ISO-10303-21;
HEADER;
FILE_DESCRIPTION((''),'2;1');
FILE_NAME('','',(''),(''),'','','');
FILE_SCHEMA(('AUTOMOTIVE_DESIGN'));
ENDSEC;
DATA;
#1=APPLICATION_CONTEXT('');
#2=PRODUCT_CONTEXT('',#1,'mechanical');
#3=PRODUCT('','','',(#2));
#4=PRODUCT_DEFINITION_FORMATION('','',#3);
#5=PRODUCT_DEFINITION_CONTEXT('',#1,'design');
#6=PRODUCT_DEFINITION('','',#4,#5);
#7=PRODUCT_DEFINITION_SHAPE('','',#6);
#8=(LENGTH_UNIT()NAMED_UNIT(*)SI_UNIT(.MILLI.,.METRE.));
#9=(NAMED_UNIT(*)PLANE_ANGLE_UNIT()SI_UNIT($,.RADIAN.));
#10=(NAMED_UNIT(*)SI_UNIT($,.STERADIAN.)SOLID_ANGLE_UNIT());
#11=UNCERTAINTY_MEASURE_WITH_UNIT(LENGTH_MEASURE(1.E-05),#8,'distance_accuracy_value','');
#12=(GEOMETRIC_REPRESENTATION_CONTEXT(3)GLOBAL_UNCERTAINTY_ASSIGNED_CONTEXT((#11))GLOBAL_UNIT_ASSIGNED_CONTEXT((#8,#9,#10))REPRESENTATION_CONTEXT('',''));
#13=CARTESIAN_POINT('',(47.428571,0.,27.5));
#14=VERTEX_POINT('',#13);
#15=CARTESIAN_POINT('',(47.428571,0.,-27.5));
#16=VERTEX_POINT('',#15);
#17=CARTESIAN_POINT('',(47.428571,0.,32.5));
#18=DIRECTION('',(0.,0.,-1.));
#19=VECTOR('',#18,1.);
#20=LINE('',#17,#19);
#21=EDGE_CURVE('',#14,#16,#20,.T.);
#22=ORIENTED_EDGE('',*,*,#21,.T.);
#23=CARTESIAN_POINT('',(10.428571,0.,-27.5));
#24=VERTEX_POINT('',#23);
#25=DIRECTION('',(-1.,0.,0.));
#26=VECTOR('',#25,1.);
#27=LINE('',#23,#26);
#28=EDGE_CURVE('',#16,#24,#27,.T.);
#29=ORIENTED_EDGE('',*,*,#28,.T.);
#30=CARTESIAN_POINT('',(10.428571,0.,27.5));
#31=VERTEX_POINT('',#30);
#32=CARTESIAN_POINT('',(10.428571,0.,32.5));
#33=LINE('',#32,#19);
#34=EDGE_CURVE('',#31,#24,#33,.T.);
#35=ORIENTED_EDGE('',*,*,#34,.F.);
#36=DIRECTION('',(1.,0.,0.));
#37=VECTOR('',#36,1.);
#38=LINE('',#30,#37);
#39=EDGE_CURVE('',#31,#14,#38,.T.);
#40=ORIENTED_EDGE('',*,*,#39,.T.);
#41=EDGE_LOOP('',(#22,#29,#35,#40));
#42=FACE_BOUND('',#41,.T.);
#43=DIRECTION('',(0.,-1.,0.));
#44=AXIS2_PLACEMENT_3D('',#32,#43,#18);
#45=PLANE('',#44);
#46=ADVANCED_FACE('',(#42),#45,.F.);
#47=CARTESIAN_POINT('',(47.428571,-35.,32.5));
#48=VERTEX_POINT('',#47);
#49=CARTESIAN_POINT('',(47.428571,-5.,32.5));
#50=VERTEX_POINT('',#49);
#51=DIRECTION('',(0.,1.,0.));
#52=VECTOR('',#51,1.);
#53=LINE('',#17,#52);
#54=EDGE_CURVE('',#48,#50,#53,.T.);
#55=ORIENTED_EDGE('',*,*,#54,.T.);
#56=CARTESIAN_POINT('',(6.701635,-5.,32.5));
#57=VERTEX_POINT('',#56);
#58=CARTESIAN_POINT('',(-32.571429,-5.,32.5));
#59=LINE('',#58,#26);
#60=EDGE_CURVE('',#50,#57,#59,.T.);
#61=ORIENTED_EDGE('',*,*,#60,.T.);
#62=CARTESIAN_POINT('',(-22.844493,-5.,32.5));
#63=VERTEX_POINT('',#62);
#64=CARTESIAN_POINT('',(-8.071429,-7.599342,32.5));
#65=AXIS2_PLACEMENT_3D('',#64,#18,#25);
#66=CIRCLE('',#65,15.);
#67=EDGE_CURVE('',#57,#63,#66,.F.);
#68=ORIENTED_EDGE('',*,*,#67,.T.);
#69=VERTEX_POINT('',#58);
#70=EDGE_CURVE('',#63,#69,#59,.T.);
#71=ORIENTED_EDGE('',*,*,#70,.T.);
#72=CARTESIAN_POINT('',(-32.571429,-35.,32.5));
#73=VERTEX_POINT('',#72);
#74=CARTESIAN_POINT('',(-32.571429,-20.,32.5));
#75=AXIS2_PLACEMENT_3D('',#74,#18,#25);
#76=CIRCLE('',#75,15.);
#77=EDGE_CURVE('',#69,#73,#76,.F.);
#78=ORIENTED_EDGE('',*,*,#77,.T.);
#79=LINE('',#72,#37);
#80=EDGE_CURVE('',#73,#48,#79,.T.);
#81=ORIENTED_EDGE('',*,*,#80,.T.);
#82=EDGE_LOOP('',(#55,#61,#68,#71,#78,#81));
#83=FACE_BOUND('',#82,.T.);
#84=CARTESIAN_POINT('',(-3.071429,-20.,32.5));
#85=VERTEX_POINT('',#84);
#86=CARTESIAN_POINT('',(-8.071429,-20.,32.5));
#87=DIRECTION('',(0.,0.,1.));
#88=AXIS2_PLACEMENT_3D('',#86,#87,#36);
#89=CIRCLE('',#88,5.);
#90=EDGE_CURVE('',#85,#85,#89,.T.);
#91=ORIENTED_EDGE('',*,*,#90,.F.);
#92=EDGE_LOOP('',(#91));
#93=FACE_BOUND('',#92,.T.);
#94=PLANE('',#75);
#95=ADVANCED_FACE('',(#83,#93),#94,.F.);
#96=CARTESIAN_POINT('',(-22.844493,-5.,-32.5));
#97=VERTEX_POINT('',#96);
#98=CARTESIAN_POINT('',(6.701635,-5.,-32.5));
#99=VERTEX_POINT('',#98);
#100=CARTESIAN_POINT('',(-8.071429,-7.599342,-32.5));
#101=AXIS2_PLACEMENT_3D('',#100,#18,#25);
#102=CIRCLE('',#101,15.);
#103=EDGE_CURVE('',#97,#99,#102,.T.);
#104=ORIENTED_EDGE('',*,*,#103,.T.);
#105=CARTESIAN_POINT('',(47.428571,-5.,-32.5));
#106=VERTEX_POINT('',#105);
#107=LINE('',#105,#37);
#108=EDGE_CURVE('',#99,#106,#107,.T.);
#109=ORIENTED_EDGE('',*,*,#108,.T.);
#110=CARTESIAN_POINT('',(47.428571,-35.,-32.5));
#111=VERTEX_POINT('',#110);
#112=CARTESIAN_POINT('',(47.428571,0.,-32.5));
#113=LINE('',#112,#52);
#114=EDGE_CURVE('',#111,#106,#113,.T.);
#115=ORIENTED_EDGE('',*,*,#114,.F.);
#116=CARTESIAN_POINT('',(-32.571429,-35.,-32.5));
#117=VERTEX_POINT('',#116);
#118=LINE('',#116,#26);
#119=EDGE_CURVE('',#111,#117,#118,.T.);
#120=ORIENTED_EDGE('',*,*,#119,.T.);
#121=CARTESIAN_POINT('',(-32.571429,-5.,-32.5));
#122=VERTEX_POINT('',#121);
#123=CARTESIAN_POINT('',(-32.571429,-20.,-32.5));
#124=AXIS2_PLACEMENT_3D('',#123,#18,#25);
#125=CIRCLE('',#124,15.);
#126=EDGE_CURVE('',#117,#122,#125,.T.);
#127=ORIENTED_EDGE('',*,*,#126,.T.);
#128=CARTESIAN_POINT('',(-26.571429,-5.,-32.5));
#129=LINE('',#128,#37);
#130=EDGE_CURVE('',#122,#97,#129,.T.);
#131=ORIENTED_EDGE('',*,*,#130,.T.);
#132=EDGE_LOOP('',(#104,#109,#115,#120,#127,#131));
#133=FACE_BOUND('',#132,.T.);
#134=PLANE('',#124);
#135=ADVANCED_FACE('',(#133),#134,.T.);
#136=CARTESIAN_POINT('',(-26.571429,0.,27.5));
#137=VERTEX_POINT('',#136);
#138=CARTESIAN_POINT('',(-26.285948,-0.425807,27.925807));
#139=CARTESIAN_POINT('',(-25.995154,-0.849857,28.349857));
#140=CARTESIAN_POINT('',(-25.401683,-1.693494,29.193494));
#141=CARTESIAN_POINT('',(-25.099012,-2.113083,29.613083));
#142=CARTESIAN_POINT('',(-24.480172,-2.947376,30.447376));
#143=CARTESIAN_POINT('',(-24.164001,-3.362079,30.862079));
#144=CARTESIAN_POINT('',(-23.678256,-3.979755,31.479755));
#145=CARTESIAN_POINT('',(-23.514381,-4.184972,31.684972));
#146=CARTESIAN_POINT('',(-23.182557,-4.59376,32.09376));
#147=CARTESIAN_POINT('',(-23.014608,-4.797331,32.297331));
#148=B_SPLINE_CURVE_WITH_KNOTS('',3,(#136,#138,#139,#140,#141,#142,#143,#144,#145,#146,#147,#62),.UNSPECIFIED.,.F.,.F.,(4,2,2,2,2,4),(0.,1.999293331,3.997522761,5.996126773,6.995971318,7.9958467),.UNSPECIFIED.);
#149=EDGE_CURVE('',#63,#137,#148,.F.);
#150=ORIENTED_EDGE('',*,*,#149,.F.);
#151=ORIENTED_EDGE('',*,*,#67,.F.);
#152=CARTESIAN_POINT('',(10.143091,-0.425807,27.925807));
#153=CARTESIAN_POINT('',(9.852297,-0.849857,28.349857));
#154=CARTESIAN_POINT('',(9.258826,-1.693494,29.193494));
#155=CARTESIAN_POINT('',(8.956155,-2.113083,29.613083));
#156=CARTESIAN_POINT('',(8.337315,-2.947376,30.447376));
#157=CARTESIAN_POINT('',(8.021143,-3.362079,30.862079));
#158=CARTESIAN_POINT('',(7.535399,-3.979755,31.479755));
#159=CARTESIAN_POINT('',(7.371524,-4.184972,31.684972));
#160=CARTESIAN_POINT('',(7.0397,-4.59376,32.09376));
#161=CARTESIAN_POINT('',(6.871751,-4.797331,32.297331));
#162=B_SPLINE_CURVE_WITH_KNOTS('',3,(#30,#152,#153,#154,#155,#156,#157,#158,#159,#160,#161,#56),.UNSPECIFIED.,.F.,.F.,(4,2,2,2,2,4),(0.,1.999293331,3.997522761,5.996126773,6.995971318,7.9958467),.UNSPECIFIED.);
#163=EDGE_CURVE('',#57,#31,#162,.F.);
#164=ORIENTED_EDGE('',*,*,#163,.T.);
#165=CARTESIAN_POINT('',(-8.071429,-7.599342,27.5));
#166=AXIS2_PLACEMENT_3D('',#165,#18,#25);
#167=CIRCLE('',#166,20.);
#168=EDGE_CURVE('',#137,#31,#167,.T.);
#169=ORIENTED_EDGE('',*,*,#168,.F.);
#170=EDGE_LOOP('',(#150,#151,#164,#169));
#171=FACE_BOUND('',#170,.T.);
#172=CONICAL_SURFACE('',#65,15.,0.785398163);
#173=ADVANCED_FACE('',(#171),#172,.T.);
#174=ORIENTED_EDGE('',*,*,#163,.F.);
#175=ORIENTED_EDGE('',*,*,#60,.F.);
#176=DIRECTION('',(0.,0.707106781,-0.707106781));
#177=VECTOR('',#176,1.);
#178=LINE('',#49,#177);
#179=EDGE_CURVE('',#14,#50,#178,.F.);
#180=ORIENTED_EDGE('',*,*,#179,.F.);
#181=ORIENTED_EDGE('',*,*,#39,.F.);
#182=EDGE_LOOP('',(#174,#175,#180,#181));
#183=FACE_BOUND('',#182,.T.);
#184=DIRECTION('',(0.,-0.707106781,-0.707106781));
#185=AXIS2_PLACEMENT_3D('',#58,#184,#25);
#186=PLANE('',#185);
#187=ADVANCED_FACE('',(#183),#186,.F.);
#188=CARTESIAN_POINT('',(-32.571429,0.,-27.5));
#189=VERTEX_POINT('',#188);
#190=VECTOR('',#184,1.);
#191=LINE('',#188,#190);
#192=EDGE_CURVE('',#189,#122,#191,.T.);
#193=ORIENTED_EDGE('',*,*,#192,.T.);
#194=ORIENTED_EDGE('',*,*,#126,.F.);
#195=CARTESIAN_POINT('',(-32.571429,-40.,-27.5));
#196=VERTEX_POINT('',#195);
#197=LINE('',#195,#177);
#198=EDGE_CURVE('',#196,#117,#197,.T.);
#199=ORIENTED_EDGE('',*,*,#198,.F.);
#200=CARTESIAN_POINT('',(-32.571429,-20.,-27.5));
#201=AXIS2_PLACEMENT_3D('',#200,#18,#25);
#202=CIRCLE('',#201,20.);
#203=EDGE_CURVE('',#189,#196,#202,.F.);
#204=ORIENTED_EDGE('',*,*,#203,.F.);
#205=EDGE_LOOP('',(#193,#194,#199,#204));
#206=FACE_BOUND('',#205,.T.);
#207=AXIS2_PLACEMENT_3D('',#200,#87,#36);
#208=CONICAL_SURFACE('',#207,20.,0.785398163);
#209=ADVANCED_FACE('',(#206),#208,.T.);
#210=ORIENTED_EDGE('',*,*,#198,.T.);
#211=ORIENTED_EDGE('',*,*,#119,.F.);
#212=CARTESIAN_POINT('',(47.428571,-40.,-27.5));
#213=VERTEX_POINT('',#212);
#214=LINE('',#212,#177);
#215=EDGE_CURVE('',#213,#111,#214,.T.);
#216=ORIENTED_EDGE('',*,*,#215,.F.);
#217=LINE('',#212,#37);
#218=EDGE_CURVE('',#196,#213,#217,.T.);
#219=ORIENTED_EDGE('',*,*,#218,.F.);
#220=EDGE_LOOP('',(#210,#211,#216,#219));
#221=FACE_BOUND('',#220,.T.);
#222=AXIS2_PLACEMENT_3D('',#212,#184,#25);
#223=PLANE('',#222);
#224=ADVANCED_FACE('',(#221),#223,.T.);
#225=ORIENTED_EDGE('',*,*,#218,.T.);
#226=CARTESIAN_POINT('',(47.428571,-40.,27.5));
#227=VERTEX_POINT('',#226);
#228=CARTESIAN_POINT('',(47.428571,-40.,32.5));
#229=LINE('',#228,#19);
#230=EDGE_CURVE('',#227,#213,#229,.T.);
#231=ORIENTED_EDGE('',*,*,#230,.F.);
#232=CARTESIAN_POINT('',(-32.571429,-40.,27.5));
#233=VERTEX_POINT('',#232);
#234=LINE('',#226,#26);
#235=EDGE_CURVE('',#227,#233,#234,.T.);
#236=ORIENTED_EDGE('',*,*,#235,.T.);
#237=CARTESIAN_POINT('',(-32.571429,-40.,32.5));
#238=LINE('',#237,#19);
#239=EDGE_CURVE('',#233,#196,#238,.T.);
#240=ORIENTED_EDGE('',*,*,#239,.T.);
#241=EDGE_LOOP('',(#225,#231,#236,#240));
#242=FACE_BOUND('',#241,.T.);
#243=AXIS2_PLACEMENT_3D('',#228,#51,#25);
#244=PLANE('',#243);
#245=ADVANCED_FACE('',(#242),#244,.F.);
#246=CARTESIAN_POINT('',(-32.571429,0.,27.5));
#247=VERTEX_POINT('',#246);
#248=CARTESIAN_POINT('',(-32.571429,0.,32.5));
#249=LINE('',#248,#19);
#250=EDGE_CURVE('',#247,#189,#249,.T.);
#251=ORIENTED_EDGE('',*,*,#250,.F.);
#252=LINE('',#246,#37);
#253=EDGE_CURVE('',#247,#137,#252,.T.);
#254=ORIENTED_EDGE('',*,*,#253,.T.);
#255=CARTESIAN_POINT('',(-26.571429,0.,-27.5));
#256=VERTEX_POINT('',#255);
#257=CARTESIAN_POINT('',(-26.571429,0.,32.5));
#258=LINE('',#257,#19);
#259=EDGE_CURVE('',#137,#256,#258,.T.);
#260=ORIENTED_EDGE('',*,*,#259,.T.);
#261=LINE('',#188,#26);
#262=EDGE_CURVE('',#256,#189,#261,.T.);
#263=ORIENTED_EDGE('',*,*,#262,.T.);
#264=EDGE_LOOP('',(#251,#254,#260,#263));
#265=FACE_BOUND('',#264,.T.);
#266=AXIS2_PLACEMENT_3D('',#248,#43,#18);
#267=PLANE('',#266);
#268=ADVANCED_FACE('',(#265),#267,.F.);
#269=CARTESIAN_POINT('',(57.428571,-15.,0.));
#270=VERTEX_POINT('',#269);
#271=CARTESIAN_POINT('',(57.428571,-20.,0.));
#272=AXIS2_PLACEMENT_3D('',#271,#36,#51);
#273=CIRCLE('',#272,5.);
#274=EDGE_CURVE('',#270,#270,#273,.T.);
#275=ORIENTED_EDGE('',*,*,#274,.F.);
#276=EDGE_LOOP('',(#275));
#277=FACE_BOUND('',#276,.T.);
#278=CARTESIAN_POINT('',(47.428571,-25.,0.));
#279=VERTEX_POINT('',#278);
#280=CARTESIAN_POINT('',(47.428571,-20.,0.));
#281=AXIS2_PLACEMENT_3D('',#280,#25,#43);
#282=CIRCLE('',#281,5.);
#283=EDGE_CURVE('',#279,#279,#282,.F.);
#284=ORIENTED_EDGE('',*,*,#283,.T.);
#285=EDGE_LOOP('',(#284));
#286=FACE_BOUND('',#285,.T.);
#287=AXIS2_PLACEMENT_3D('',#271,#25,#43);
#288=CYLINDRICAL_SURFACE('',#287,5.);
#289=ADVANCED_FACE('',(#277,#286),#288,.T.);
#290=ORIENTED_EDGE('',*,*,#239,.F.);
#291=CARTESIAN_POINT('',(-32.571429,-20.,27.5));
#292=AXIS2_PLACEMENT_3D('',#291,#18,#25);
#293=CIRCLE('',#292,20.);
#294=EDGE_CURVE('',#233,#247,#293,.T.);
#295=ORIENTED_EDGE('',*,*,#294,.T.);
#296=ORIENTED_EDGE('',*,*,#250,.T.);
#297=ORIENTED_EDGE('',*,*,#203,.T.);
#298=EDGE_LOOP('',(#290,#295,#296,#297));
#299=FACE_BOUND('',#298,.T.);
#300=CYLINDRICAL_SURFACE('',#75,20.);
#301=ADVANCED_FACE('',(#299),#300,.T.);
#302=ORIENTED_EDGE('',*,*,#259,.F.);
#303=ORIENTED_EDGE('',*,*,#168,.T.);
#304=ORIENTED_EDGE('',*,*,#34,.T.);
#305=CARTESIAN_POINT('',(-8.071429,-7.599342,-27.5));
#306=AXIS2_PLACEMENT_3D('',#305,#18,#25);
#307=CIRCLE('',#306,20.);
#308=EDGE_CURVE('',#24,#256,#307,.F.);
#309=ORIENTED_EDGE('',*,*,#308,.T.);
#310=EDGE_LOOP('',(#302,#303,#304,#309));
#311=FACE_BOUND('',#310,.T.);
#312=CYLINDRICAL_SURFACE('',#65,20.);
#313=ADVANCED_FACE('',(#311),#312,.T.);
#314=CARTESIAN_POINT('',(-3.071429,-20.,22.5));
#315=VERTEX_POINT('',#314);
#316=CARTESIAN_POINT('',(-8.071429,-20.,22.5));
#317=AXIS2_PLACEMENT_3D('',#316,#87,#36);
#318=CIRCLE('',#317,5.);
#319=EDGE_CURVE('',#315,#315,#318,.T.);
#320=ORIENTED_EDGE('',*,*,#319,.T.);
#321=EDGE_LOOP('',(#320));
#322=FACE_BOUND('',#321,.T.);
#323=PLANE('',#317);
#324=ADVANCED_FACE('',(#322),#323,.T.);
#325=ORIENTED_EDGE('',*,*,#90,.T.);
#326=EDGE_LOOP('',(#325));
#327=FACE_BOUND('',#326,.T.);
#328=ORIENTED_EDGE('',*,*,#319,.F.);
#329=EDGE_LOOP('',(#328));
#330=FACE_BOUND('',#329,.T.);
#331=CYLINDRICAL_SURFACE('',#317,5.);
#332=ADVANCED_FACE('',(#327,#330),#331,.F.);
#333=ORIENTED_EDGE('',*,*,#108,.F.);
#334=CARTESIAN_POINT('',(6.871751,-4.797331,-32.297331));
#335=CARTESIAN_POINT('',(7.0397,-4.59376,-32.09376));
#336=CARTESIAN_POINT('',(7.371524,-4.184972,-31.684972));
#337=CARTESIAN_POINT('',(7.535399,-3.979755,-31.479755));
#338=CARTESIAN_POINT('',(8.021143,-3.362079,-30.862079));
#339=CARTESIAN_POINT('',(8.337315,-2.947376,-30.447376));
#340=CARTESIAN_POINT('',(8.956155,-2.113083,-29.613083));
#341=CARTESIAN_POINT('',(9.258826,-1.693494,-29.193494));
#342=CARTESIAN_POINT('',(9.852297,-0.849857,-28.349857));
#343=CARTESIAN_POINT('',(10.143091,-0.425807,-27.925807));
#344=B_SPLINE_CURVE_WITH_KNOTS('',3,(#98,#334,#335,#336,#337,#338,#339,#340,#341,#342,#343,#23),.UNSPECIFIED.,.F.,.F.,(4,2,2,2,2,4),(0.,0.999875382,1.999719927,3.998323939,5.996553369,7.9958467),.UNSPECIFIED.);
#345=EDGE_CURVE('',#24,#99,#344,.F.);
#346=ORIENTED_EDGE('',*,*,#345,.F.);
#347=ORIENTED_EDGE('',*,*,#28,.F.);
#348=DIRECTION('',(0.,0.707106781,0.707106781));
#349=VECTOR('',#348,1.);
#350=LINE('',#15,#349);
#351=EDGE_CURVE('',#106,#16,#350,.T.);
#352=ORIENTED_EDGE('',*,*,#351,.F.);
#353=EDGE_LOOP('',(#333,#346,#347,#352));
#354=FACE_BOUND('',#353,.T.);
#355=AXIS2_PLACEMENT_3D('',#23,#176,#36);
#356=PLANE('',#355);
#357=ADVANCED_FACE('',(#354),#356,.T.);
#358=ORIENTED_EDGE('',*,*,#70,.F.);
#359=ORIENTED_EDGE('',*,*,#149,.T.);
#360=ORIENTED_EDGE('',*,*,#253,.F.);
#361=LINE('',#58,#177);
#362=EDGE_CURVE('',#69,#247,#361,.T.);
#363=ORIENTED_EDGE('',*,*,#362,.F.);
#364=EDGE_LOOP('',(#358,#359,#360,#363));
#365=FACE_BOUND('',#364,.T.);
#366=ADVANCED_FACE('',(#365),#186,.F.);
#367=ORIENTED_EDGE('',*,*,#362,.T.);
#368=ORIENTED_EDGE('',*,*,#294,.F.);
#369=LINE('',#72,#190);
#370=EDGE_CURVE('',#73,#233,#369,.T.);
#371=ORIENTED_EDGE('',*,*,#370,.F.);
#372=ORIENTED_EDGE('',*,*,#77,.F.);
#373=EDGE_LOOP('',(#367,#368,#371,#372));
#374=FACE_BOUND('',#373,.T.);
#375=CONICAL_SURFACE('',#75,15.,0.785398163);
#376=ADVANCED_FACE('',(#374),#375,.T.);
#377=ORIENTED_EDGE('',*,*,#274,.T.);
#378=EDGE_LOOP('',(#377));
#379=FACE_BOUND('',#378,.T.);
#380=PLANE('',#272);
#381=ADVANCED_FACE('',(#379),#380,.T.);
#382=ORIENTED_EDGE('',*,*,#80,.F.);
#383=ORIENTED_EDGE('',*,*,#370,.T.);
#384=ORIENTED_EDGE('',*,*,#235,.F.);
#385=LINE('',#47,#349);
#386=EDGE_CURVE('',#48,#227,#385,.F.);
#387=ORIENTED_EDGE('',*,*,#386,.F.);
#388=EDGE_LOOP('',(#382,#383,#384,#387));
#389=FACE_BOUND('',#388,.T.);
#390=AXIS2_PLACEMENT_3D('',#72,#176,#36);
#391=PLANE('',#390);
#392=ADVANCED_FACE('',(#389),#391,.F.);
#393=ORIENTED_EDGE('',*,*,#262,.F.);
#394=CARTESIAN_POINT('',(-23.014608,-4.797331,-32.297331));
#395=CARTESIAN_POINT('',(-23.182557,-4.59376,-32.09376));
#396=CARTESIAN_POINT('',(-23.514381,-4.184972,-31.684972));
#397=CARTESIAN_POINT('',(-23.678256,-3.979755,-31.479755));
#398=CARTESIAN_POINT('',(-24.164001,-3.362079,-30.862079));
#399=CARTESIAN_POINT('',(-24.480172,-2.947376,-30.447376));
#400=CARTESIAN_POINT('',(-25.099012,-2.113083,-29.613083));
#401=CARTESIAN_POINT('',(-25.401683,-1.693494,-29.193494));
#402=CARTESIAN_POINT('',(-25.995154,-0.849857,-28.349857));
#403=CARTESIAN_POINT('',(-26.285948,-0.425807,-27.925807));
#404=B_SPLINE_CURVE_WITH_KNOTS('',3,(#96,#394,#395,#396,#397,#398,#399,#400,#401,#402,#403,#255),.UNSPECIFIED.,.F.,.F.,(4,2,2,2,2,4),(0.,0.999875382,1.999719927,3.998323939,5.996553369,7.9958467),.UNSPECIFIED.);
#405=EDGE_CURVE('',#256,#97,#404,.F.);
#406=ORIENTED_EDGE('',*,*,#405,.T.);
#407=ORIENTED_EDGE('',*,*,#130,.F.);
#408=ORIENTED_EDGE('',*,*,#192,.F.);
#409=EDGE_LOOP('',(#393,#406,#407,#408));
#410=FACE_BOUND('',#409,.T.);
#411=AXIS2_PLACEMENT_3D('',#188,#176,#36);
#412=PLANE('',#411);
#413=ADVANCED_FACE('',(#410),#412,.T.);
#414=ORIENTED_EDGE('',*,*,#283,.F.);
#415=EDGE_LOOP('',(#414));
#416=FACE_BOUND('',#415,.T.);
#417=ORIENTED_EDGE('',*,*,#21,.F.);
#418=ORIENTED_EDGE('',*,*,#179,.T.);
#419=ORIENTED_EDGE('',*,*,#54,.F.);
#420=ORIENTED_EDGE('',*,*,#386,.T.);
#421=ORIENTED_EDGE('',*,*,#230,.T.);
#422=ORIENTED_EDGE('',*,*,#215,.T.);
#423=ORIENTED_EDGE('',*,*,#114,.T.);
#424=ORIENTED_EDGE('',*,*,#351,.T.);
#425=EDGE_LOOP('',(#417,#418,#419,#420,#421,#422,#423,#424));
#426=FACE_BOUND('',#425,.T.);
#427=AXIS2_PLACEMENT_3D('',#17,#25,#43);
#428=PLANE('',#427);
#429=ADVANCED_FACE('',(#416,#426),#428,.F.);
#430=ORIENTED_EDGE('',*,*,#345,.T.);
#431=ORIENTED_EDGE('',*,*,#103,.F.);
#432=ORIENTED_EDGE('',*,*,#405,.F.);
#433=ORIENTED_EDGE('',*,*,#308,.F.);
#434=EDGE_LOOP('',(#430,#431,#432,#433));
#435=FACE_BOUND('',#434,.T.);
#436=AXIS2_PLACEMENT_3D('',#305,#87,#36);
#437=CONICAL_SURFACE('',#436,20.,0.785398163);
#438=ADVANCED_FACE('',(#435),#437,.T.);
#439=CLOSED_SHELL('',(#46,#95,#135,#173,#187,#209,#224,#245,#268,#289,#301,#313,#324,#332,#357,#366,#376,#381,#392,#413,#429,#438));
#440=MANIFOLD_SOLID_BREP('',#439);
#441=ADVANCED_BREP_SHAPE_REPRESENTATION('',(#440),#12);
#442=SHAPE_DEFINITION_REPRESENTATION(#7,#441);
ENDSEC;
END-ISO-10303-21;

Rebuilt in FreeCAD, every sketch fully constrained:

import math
import FreeCAD as App
import Part
import Sketcher
Q = App.Units.Quantity


def edges_at(feature, points):
    """Names of the edges that pass closest to the given points."""
    edges = feature.Shape.Edges
    near = lambda p: min(range(len(edges)), key=lambda i: edges[i].distToShape(Part.Vertex(*p))[0])
    return sorted({f"Edge{near(p) + 1}" for p in points})

doc = App.newDocument("Part")
body = doc.addObject("PartDesign::Body", "Body")

# Sketch on XY plane
sketch1 = doc.addObject("Sketcher::SketchObject", "Sketch")
body.addObject(sketch1)
sketch1.AttachmentSupport = (doc.XY_Plane, [""])
sketch1.MapMode = "FlatFace"
sketch1.addGeometry([
    Part.LineSegment(App.Vector(47, -40, 0), App.Vector(47, 0, 0)),  # 0
    Part.LineSegment(App.Vector(47, 0, 0), App.Vector(10, 0, 0)),  # 1
    Part.ArcOfCircle(Part.Circle(App.Vector(-8, -8, 0), App.Vector(0, 0, 1), 20), math.radians(22), math.radians(158)),  # 2
    Part.LineSegment(App.Vector(-27, 0, 0), App.Vector(-33, 0, 0)),  # 3
    Part.ArcOfCircle(Part.Circle(App.Vector(-33, -20, 0), App.Vector(0, 0, 1), 20), math.radians(90), math.radians(270)),  # 4
    Part.LineSegment(App.Vector(-33, -40, 0), App.Vector(47, -40, 0)),  # 5
], False)
sketch1.addConstraint([
    Sketcher.Constraint("Coincident", 0, 2, 1, 1),
    Sketcher.Constraint("Coincident", 1, 2, 2, 1),
    Sketcher.Constraint("Coincident", 2, 2, 3, 1),
    Sketcher.Constraint("Tangent", 3, 2, 4, 1),
    Sketcher.Constraint("Tangent", 4, 2, 5, 1),
    Sketcher.Constraint("Coincident", 5, 2, 0, 1),
    Sketcher.Constraint("Vertical", 0),
    Sketcher.Constraint("Horizontal", 1),
    Sketcher.Constraint("Horizontal", 3),
    Sketcher.Constraint("Horizontal", 5),
    Sketcher.Constraint("Equal", 2, 4),
    Sketcher.Constraint("PointOnObject", 0, 2, -1),
    Sketcher.Constraint("PointOnObject", 2, 2, -1),
    Sketcher.Constraint("Radius", 2, Q("20 mm")),
    Sketcher.Constraint("DistanceX", 1, 2, 1, 1, Q("37 mm")),
    Sketcher.Constraint("DistanceX", 3, 2, 3, 1, Q("6 mm")),
    Sketcher.Constraint("DistanceX", 5, 1, 5, 2, Q("80 mm")),
    Sketcher.Constraint("DistanceX", 2, 3, -1, 1, Q("8.071429 mm")),
])
pad1 = doc.addObject("PartDesign::Pad", "Pad")
body.addObject(pad1)
pad1.Profile = sketch1
pad1.Length = 65
pad1.Midplane = True
doc.recompute()

chamfer = doc.addObject("PartDesign::Chamfer", "Chamfer")
body.addObject(chamfer)
chamfer.Base = (pad1, edges_at(pad1, [
    (28.929, 0, 32.5),
    (-8.071, 12.401, 32.5),
    (-29.571, 0, 32.5),
    (-52.571, -20, 32.5),
    (-29.571, 0, -32.5),
    (-8.071, 12.401, -32.5),
    (28.929, 0, -32.5),
    (7.429, -40, -32.5),
    (-52.571, -20, -32.5),
    (7.429, -40, 32.5),
]))
chamfer.Size = 5

# Sketch on XY plane
sketch2 = doc.addObject("Sketcher::SketchObject", "Sketch001")
body.addObject(sketch2)
sketch2.AttachmentSupport = (doc.XY_Plane, [""])
sketch2.MapMode = "FlatFace"
sketch2.AttachmentOffset = App.Placement(App.Vector(0, 0, 32.5), App.Rotation())
sketch2.addGeometry(Part.Circle(App.Vector(-8, -20, 0), App.Vector(0, 0, 1), 5), False)
sketch2.addConstraint([
    Sketcher.Constraint("Diameter", 0, Q("10 mm")),
    Sketcher.Constraint("DistanceY", 0, 3, -1, 1, Q("20 mm")),
    Sketcher.Constraint("DistanceX", 0, 3, -1, 1, Q("8.071429 mm")),
])
pocket1 = doc.addObject("PartDesign::Pocket", "Pocket")
body.addObject(pocket1)
pocket1.Profile = sketch2
pocket1.Length = 10

# Sketch on YZ plane
sketch3 = doc.addObject("Sketcher::SketchObject", "Sketch002")
body.addObject(sketch3)
sketch3.AttachmentSupport = (doc.YZ_Plane, [""])
sketch3.MapMode = "FlatFace"
sketch3.AttachmentOffset = App.Placement(App.Vector(0, 0, 47.428571), App.Rotation())
sketch3.addGeometry(Part.Circle(App.Vector(-20, 0, 0), App.Vector(0, 0, 1), 5), False)
sketch3.addConstraint([
    Sketcher.Constraint("PointOnObject", 0, 3, -1),
    Sketcher.Constraint("Diameter", 0, Q("10 mm")),
    Sketcher.Constraint("DistanceX", 0, 3, -1, 1, Q("20 mm")),
])
pad2 = doc.addObject("PartDesign::Pad", "Pad001")
body.addObject(pad2)
pad2.Profile = sketch3
pad2.Length = 10

doc.recompute()
